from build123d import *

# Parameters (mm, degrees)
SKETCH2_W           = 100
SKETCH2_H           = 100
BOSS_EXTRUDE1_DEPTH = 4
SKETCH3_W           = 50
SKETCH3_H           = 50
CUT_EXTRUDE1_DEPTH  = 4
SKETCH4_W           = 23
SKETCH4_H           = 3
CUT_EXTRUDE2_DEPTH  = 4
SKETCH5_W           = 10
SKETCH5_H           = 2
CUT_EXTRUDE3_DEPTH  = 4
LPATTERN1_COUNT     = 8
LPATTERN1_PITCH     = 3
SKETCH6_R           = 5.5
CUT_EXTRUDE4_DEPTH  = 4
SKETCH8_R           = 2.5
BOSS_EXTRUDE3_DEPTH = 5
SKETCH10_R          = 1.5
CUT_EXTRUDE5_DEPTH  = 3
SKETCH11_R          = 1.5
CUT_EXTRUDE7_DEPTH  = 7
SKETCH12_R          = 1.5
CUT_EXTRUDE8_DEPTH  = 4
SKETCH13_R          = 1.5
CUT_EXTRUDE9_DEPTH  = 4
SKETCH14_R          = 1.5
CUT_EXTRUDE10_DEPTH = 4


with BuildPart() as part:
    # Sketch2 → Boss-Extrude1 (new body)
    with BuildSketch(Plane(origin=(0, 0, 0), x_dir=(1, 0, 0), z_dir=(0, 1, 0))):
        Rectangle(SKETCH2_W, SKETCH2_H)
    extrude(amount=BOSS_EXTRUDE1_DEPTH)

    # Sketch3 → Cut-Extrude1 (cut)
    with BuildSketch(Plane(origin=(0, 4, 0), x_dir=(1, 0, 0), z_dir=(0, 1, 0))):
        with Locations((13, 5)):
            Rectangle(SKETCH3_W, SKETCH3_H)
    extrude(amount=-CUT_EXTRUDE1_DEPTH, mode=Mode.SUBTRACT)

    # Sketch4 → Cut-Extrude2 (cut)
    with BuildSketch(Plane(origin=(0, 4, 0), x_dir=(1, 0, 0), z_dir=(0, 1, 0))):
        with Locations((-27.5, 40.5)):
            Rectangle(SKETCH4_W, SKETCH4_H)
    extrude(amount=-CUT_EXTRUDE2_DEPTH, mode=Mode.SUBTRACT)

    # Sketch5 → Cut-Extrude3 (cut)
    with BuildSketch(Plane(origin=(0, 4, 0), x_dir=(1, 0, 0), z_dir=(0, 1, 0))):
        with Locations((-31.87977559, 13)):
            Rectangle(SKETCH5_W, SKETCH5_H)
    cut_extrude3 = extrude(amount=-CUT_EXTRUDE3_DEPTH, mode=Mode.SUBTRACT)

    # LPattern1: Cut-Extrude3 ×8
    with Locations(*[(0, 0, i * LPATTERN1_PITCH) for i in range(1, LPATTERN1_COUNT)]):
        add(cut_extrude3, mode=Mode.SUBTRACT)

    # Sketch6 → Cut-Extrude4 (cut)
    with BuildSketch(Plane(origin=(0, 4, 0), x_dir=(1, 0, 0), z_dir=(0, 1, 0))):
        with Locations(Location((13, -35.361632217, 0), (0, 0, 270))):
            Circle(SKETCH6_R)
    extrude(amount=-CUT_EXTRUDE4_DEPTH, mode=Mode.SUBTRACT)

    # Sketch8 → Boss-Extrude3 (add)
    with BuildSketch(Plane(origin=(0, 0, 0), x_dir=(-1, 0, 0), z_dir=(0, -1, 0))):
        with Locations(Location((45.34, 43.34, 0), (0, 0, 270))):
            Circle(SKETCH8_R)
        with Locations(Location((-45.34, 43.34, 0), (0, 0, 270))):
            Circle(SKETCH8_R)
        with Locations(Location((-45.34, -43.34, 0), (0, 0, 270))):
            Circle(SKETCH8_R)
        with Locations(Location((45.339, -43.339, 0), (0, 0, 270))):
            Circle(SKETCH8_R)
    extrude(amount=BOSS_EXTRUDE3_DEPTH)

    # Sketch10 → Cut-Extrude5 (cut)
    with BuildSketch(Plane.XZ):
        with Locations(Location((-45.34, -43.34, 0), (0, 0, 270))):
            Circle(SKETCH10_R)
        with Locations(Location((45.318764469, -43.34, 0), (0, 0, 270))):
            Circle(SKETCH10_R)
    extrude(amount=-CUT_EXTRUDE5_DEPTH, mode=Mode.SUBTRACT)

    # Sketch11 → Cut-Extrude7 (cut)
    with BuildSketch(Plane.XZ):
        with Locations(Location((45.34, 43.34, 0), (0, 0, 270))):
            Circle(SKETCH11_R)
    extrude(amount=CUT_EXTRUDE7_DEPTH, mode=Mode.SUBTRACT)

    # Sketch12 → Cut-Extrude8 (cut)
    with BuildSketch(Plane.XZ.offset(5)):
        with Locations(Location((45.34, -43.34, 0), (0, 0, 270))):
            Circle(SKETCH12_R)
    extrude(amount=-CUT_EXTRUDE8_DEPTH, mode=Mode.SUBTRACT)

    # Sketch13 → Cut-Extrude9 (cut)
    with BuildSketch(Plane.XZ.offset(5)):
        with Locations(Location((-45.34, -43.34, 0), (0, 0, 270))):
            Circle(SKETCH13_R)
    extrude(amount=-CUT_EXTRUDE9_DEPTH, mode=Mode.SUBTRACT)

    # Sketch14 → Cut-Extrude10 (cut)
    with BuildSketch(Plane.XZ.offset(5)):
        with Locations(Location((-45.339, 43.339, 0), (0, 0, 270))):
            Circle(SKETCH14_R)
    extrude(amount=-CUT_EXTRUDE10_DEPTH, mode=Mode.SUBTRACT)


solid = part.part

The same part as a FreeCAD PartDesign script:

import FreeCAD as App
import Part
import Sketcher

V = App.Vector


def add_polygon(sketch, points):
    """Adds a closed chain of lines whose ends are joined by coincident constraints."""
    first, n = sketch.GeometryCount, len(points)
    for a, b in zip(points, points[1:] + points[:1]):
        sketch.addGeometry(Part.LineSegment(App.Vector(*a, 0), App.Vector(*b, 0)), False)
    for i in range(n):
        sketch.addConstraint(Sketcher.Constraint("Coincident", first + i, 2, first + (i + 1) % n, 1))

doc = App.newDocument("Part")
body = doc.addObject("PartDesign::Body", "Body")

sketch1 = body.newObject("Sketcher::SketchObject", "Sketch")
sketch1.AttachmentSupport = (doc.getObject("XZ_Plane"), [""])
sketch1.MapMode = "FlatFace"
add_polygon(sketch1, [(-50, -50), (-50, 50), (50, 50), (50, -50)])
sketch1.addConstraint([
    Sketcher.Constraint("Vertical", 0),
    Sketcher.Constraint("Horizontal", 1),
    Sketcher.Constraint("Vertical", 2),
    Sketcher.Constraint("Horizontal", 3),
    Sketcher.Constraint("Symmetric", 0, 2, 2, 2, -1, 1),
    Sketcher.Constraint("Equal", 3, 0),
    Sketcher.Constraint("DistanceX", 1, 1, 1, 2, 100.0),
])
pad1 = body.newObject("PartDesign::Pad", "Pad")
pad1.Profile = sketch1
pad1.Length = 4
pad1.Reversed = True

sketch2 = body.newObject("Sketcher::SketchObject", "Sketch001")
sketch2.AttachmentSupport = (doc.getObject("XZ_Plane"), [""])
sketch2.MapMode = "FlatFace"
sketch2.AttachmentOffset = App.Placement(V(0, 0, -4), App.Rotation())
add_polygon(sketch2, [(-12, -30), (-12, 20), (38, 20), (38, -30)])
sketch2.addConstraint([
    Sketcher.Constraint("Vertical", 0),
    Sketcher.Constraint("Horizontal", 1),
    Sketcher.Constraint("Vertical", 2),
    Sketcher.Constraint("Horizontal", 3),
    Sketcher.Constraint("Equal", 3, 0),
    Sketcher.Constraint("DistanceX", 1, 1, 1, 2, 50.0),
    Sketcher.Constraint("DistanceX", 0, 2, -1, 1, 12.0),
    Sketcher.Constraint("DistanceY", -1, 1, 0, 2, 20.0),
])
pocket1 = body.newObject("PartDesign::Pocket", "Pocket")
pocket1.Profile = sketch2
pocket1.Length = 4
pocket1.Reversed = True

sketch3 = body.newObject("Sketcher::SketchObject", "Sketch002")
sketch3.AttachmentSupport = (doc.getObject("XZ_Plane"), [""])
sketch3.MapMode = "FlatFace"
sketch3.AttachmentOffset = App.Placement(V(0, 0, -4), App.Rotation())
add_polygon(sketch3, [(-39, -42), (-39, -39), (-16, -39), (-16, -42)])
sketch3.addConstraint([
    Sketcher.Constraint("Vertical", 0),
    Sketcher.Constraint("Horizontal", 1),
    Sketcher.Constraint("Vertical", 2),
    Sketcher.Constraint("Horizontal", 3),
    Sketcher.Constraint("DistanceX", 1, 1, 1, 2, 23.0),
    Sketcher.Constraint("DistanceY", 0, 1, 0, 2, 3.0),
    Sketcher.Constraint("DistanceX", 0, 2, -1, 1, 39.0),
    Sketcher.Constraint("DistanceY", 0, 2, -1, 1, 39.0),
])
pocket2 = body.newObject("PartDesign::Pocket", "Pocket001")
pocket2.Profile = sketch3
pocket2.Length = 4
pocket2.Reversed = True

sketch4 = body.newObject("Sketcher::SketchObject", "Sketch003")
sketch4.AttachmentSupport = (doc.getObject("XZ_Plane"), [""])
sketch4.MapMode = "FlatFace"
sketch4.AttachmentOffset = App.Placement(V(0, 0, -4), App.Rotation())
add_polygon(sketch4, [(-36.9, -14), (-36.9, -12), (-26.9, -12), (-26.9, -14)])
sketch4.addConstraint([
    Sketcher.Constraint("Vertical", 0),
    Sketcher.Constraint("Horizontal", 1),
    Sketcher.Constraint("Vertical", 2),
    Sketcher.Constraint("Horizontal", 3),
    Sketcher.Constraint("DistanceX", 1, 1, 1, 2, 10.0),
    Sketcher.Constraint("DistanceY", 0, 1, 0, 2, 2.0),
    Sketcher.Constraint("DistanceY", 0, 2, -1, 1, 12.0),
    Sketcher.Constraint("DistanceX", 0, 2, -1, 1, 36.879776),
])
pocket3 = body.newObject("PartDesign::Pocket", "Pocket002")
pocket3.Profile = sketch4
pocket3.Length = 4
pocket3.Reversed = True
doc.recompute()

linearpattern = body.newObject("PartDesign::LinearPattern", "LinearPattern")
linearpattern.Originals = [pocket3]
linearpattern.Direction = (doc.getObject("Z_Axis"), [""])
linearpattern.Mode = "offset"
linearpattern.Offset = 3
linearpattern.Occurrences = 8
body.Tip = linearpattern

sketch5 = body.newObject("Sketcher::SketchObject", "Sketch004")
sketch5.AttachmentSupport = (doc.getObject("XZ_Plane"), [""])
sketch5.MapMode = "FlatFace"
sketch5.AttachmentOffset = App.Placement(V(0, 0, -4), App.Rotation())
sketch5.addGeometry(Part.Circle(V(13, 35, 0), V(0, 0, 1), 6), False)
sketch5.addConstraint([
    Sketcher.Constraint("Diameter", 0, 11.0),
    Sketcher.Constraint("DistanceX", -1, 1, 0, 3, 13.0),
    Sketcher.Constraint("DistanceY", -1, 1, 0, 3, 35.361632),
])
pocket4 = body.newObject("PartDesign::Pocket", "Pocket003")
pocket4.Profile = sketch5
pocket4.Length = 4
pocket4.Reversed = True

sketch6 = body.newObject("Sketcher::SketchObject", "Sketch005")
sketch6.AttachmentSupport = (doc.getObject("XZ_Plane"), [""])
sketch6.MapMode = "FlatFace"
sketch6.addGeometry([
    Part.Circle(V(-45.3, -43.3, 0), V(0, 0, 1), 2.5),
    Part.Circle(V(45.3, -43.3, 0), V(0, 0, 1), 2.5),
    Part.Circle(V(45.3, 43.3, 0), V(0, 0, 1), 2.5),
    Part.Circle(V(-45.3, 43.3, 0), V(0, 0, 1), 2.5),
], False)
sketch6.addConstraint([
    Sketcher.Constraint("Equal", 0, 1),
    Sketcher.Constraint("Equal", 1, 2),
    Sketcher.Constraint("Equal", 2, 3),
    Sketcher.Constraint("Symmetric", 0, 3, 2, 3, -1, 1),
    Sketcher.Constraint("Symmetric", 0, 3, 1, 3, -2),
    Sketcher.Constraint("Diameter", 0, 5.0),
    Sketcher.Constraint("DistanceX", 0, 3, -1, 1, 45.34),
    Sketcher.Constraint("DistanceY", 0, 3, -1, 1, 43.34),
    Sketcher.Constraint("DistanceX", 3, 3, -1, 1, 45.339),
    Sketcher.Constraint("DistanceY", -1, 1, 3, 3, 43.339),
])
pad2 = body.newObject("PartDesign::Pad", "Pad001")
pad2.Profile = sketch6
pad2.Length = 5

sketch7 = body.newObject("Sketcher::SketchObject", "Sketch006")
sketch7.AttachmentSupport = (doc.getObject("XZ_Plane"), [""])
sketch7.MapMode = "FlatFace"
sketch7.addGeometry([
    Part.Circle(V(-45.3, -43.3, 0), V(0, 0, 1), 1.5),
    Part.Circle(V(45.3, -43.3, 0), V(0, 0, 1), 1.5),
], False)
sketch7.addConstraint([
    Sketcher.Constraint("Equal", 0, 1),
    Sketcher.Constraint("Horizontal", 0, 3, 1, 3),
    Sketcher.Constraint("Diameter", 0, 3.0),
    Sketcher.Constraint("DistanceX", 0, 3, -1, 1, 45.34),
    Sketcher.Constraint("DistanceY", 0, 3, -1, 1, 43.34),
    Sketcher.Constraint("DistanceX", -1, 1, 1, 3, 45.318764),
])
pocket5 = body.newObject("PartDesign::Pocket", "Pocket004")
pocket5.Profile = sketch7
pocket5.Length = 3

sketch8 = body.newObject("Sketcher::SketchObject", "Sketch007")
sketch8.AttachmentSupport = (doc.getObject("XZ_Plane"), [""])
sketch8.MapMode = "FlatFace"
sketch8.addGeometry(Part.Circle(V(45.3, 43.3, 0), V(0, 0, 1), 1.5), False)
sketch8.addConstraint([
    Sketcher.Constraint("Diameter", 0, 3.0),
    Sketcher.Constraint("DistanceX", -1, 1, 0, 3, 45.34),
    Sketcher.Constraint("DistanceY", -1, 1, 0, 3, 43.34),
])
pocket6 = body.newObject("PartDesign::Pocket", "Pocket005")
pocket6.Profile = sketch8
pocket6.Length = 7
pocket6.Reversed = True

sketch9 = body.newObject("Sketcher::SketchObject", "Sketch008")
sketch9.AttachmentSupport = (doc.getObject("XZ_Plane"), [""])
sketch9.MapMode = "FlatFace"
sketch9.AttachmentOffset = App.Placement(V(0, 0, 5), App.Rotation())
sketch9.addGeometry(Part.Circle(V(45.3, -43.3, 0), V(0, 0, 1), 1.5), False)
sketch9.addConstraint([
    Sketcher.Constraint("Diameter", 0, 3.0),
    Sketcher.Constraint("DistanceX", -1, 1, 0, 3, 45.34),
    Sketcher.Constraint("DistanceY", 0, 3, -1, 1, 43.34),
])
pocket7 = body.newObject("PartDesign::Pocket", "Pocket006")
pocket7.Profile = sketch9
pocket7.Length = 4

sketch10 = body.newObject("Sketcher::SketchObject", "Sketch009")
sketch10.AttachmentSupport = (doc.getObject("XZ_Plane"), [""])
sketch10.MapMode = "FlatFace"
sketch10.AttachmentOffset = App.Placement(V(0, 0, 5), App.Rotation())
sketch10.addGeometry(Part.Circle(V(-45.3, -43.3, 0), V(0, 0, 1), 1.5), False)
sketch10.addConstraint([
    Sketcher.Constraint("Diameter", 0, 3.0),
    Sketcher.Constraint("DistanceX", 0, 3, -1, 1, 45.34),
    Sketcher.Constraint("DistanceY", 0, 3, -1, 1, 43.34),
])
pocket8 = body.newObject("PartDesign::Pocket", "Pocket007")
pocket8.Profile = sketch10
pocket8.Length = 4

sketch11 = body.newObject("Sketcher::SketchObject", "Sketch010")
sketch11.AttachmentSupport = (doc.getObject("XZ_Plane"), [""])
sketch11.MapMode = "FlatFace"
sketch11.AttachmentOffset = App.Placement(V(0, 0, 5), App.Rotation())
sketch11.addGeometry(Part.Circle(V(-45.3, 43.3, 0), V(0, 0, 1), 1.5), False)
sketch11.addConstraint([
    Sketcher.Constraint("Diameter", 0, 3.0),
    Sketcher.Constraint("DistanceX", 0, 3, -1, 1, 45.339),
    Sketcher.Constraint("DistanceY", -1, 1, 0, 3, 43.339),
])
pocket9 = body.newObject("PartDesign::Pocket", "Pocket008")
pocket9.Profile = sketch11
pocket9.Length = 4

doc.recompute()
